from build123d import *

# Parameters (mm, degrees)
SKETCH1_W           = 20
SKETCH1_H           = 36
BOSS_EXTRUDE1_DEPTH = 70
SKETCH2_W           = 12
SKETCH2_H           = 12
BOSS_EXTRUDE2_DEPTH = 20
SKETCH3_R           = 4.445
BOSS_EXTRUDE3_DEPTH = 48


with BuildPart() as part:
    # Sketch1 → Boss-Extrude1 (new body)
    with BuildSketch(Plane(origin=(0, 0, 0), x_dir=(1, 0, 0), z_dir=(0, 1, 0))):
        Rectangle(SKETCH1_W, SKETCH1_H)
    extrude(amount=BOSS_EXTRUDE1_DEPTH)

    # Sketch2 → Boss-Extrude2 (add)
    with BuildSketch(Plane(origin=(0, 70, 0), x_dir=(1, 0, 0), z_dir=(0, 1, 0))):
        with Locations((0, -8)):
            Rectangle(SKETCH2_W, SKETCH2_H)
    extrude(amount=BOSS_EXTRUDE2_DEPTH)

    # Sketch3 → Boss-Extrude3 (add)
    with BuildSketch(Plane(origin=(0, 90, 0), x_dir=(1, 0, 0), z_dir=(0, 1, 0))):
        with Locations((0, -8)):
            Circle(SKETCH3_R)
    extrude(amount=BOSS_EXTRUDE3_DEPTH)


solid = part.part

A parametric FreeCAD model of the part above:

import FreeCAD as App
import Part
import Sketcher
from FreeCAD import Vector
Q = App.Units.Quantity


def add_polygon(sketch, points):
    """Adds a closed chain of lines whose ends are joined by coincident constraints."""
    first, n = sketch.GeometryCount, len(points)
    for a, b in zip(points, points[1:] + points[:1]):
        sketch.addGeometry(Part.LineSegment(App.Vector(*a, 0), App.Vector(*b, 0)), False)
    for i in range(n):
        sketch.addConstraint(Sketcher.Constraint("Coincident", first + i, 2, first + (i + 1) % n, 1))

doc = App.newDocument("Part")
params = doc.addObject("Spreadsheet::Sheet", "Params")
for row, (alias, value) in enumerate([
    ("sketch1_width", "20 mm"),
    ("sketch1_height", "36 mm"),
    ("pad1_length", "70 mm"),
    ("sketch2_width", "12 mm"),
    ("pad2_length", "20 mm"),
    ("sketch3_diameter", "8.89 mm"),
    ("pad3_length", "48 mm"),
], start=1):
    params.set(f"A{row}", alias)
    params.set(f"B{row}", "=" + value)
    params.setAlias(f"B{row}", alias)

body = doc.addObject("PartDesign::Body", "Body")

# Sketch on XZ plane
sketch1 = body.newObject("Sketcher::SketchObject", "Sketch")
sketch1.AttachmentSupport = (doc.getObject("XZ_Plane"), [""])
sketch1.MapMode = "FlatFace"
add_polygon(sketch1, [(-10, -18), (-10, 18), (10, 18), (10, -18)])  # lines 0-3
sketch1.addConstraint(Sketcher.Constraint("Vertical", 0))
sketch1.addConstraint(Sketcher.Constraint("Horizontal", 1))
sketch1.addConstraint(Sketcher.Constraint("Vertical", 2))
sketch1.addConstraint(Sketcher.Constraint("Horizontal", 3))
sketch1.addConstraint(Sketcher.Constraint("Symmetric", 0, 2, 2, 2, -1, 1))
sketch1.addConstraint(Sketcher.Constraint("DistanceX", 1, 1, 1, 2, Q("20 mm")))
sketch1.addConstraint(Sketcher.Constraint("DistanceY", 0, 1, 0, 2, Q("36 mm")))
sketch1.setExpression("Constraints[9]", "Params.sketch1_width")
sketch1.setExpression("Constraints[10]", "Params.sketch1_height")
pad1 = body.newObject("PartDesign::Pad", "Pad")
pad1.Profile = sketch1
pad1.setExpression("Length", "Params.pad1_length")
pad1.Reversed = True

# Sketch on XZ plane
sketch2 = body.newObject("Sketcher::SketchObject", "Sketch001")
sketch2.AttachmentSupport = (doc.getObject("XZ_Plane"), [""])
sketch2.MapMode = "FlatFace"
sketch2.AttachmentOffset = App.Placement(Vector(0, 0, -70), App.Rotation())
add_polygon(sketch2, [(-6, 2), (-6, 14), (6, 14), (6, 2)])  # lines 0-3
sketch2.addConstraint(Sketcher.Constraint("Vertical", 0))
sketch2.addConstraint(Sketcher.Constraint("Horizontal", 1))
sketch2.addConstraint(Sketcher.Constraint("Vertical", 2))
sketch2.addConstraint(Sketcher.Constraint("Horizontal", 3))
sketch2.addConstraint(Sketcher.Constraint("Equal", 3, 0))
sketch2.addConstraint(Sketcher.Constraint("DistanceX", 1, 1, 1, 2, Q("12 mm")))
sketch2.addConstraint(Sketcher.Constraint("DistanceX", 0, 2, -1, 1, Q("6 mm")))
sketch2.addConstraint(Sketcher.Constraint("DistanceY", -1, 1, 0, 2, Q("14 mm")))
sketch2.setExpression("Constraints[9]", "Params.sketch2_width")
pad2 = body.newObject("PartDesign::Pad", "Pad001")
pad2.Profile = sketch2
pad2.setExpression("Length", "Params.pad2_length")
pad2.Reversed = True

# Sketch on XZ plane
sketch3 = body.newObject("Sketcher::SketchObject", "Sketch002")
sketch3.AttachmentSupport = (doc.getObject("XZ_Plane"), [""])
sketch3.MapMode = "FlatFace"
sketch3.AttachmentOffset = App.Placement(Vector(0, 0, -90), App.Rotation())
sketch3.addGeometry(Part.Circle(Vector(0, 8, 0), Vector(0, 0, 1), 4.4), False)
sketch3.addConstraint(Sketcher.Constraint("PointOnObject", 0, 3, -2))
sketch3.addConstraint(Sketcher.Constraint("Diameter", 0, Q("8.89 mm")))
sketch3.addConstraint(Sketcher.Constraint("DistanceY", -1, 1, 0, 3, Q("8 mm")))
sketch3.setExpression("Constraints[1]", "Params.sketch3_diameter")
pad3 = body.newObject("PartDesign::Pad", "Pad002")
pad3.Profile = sketch3
pad3.setExpression("Length", "Params.pad3_length")
pad3.Reversed = True

doc.recompute()
